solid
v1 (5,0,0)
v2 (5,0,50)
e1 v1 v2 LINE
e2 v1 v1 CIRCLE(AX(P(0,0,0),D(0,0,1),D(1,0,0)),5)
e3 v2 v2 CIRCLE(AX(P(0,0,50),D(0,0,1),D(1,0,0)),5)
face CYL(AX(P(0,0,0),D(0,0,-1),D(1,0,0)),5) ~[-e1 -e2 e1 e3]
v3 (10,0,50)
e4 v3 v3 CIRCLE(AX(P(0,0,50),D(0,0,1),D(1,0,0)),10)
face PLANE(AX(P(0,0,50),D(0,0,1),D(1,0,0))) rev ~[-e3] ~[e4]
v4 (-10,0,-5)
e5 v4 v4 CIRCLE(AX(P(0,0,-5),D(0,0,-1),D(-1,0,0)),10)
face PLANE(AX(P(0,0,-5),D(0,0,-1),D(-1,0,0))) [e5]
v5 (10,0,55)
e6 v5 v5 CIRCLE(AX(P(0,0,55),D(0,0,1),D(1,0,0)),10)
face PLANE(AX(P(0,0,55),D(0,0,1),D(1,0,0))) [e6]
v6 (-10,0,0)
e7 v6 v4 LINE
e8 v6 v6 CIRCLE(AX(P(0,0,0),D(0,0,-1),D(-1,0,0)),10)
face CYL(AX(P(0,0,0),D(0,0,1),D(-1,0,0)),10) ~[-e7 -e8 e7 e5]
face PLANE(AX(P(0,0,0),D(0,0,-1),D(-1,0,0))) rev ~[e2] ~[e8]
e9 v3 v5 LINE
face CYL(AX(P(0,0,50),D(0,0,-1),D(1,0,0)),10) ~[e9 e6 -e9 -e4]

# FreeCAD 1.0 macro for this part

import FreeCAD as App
import Part
import Sketcher
Q = App.Units.Quantity

doc = App.newDocument("Part")
body = doc.addObject("PartDesign::Body", "Body")

sketch1 = doc.addObject("Sketcher::SketchObject", "Sketch")
body.addObject(sketch1)
sketch1.AttachmentSupport = (doc.XY_Plane, [""])
sketch1.MapMode = "FlatFace"
sketch1.addGeometry(Part.Circle(App.Vector(0, 0, 0), App.Vector(0, 0, 1), 5), False)
sketch1.addConstraint(Sketcher.Constraint("Coincident", 0, 3, -1, 1))
sketch1.addConstraint(Sketcher.Constraint("Diameter", 0, Q("10 mm")))
pad1 = doc.addObject("PartDesign::Pad", "Pad")
body.addObject(pad1)
pad1.Profile = sketch1
pad1.Length = 50

sketch2 = doc.addObject("Sketcher::SketchObject", "Sketch001")
body.addObject(sketch2)
sketch2.AttachmentSupport = (doc.XY_Plane, [""])
sketch2.MapMode = "FlatFace"
sketch2.addGeometry(Part.Circle(App.Vector(0, 0, 0), App.Vector(0, 0, 1), 10), False)
sketch2.addConstraint(Sketcher.Constraint("Coincident", 0, 3, -1, 1))
sketch2.addConstraint(Sketcher.Constraint("Diameter", 0, Q("20 mm")))
pad2 = doc.addObject("PartDesign::Pad", "Pad001")
body.addObject(pad2)
pad2.Profile = sketch2
pad2.Length = 5
pad2.Reversed = True

sketch3 = doc.addObject("Sketcher::SketchObject", "Sketch002")
body.addObject(sketch3)
sketch3.AttachmentSupport = (doc.XY_Plane, [""])
sketch3.MapMode = "FlatFace"
sketch3.AttachmentOffset = App.Placement(App.Vector(0, 0, 50), App.Rotation())
sketch3.addGeometry(Part.Circle(App.Vector(0, 0, 0), App.Vector(0, 0, 1), 10), False)
sketch3.addConstraint(Sketcher.Constraint("Coincident", 0, 3, -1, 1))
sketch3.addConstraint(Sketcher.Constraint("Diameter", 0, Q("20 mm")))
pad3 = doc.addObject("PartDesign::Pad", "Pad002")
body.addObject(pad3)
pad3.Profile = sketch3
pad3.Length = 5

doc.recompute()
